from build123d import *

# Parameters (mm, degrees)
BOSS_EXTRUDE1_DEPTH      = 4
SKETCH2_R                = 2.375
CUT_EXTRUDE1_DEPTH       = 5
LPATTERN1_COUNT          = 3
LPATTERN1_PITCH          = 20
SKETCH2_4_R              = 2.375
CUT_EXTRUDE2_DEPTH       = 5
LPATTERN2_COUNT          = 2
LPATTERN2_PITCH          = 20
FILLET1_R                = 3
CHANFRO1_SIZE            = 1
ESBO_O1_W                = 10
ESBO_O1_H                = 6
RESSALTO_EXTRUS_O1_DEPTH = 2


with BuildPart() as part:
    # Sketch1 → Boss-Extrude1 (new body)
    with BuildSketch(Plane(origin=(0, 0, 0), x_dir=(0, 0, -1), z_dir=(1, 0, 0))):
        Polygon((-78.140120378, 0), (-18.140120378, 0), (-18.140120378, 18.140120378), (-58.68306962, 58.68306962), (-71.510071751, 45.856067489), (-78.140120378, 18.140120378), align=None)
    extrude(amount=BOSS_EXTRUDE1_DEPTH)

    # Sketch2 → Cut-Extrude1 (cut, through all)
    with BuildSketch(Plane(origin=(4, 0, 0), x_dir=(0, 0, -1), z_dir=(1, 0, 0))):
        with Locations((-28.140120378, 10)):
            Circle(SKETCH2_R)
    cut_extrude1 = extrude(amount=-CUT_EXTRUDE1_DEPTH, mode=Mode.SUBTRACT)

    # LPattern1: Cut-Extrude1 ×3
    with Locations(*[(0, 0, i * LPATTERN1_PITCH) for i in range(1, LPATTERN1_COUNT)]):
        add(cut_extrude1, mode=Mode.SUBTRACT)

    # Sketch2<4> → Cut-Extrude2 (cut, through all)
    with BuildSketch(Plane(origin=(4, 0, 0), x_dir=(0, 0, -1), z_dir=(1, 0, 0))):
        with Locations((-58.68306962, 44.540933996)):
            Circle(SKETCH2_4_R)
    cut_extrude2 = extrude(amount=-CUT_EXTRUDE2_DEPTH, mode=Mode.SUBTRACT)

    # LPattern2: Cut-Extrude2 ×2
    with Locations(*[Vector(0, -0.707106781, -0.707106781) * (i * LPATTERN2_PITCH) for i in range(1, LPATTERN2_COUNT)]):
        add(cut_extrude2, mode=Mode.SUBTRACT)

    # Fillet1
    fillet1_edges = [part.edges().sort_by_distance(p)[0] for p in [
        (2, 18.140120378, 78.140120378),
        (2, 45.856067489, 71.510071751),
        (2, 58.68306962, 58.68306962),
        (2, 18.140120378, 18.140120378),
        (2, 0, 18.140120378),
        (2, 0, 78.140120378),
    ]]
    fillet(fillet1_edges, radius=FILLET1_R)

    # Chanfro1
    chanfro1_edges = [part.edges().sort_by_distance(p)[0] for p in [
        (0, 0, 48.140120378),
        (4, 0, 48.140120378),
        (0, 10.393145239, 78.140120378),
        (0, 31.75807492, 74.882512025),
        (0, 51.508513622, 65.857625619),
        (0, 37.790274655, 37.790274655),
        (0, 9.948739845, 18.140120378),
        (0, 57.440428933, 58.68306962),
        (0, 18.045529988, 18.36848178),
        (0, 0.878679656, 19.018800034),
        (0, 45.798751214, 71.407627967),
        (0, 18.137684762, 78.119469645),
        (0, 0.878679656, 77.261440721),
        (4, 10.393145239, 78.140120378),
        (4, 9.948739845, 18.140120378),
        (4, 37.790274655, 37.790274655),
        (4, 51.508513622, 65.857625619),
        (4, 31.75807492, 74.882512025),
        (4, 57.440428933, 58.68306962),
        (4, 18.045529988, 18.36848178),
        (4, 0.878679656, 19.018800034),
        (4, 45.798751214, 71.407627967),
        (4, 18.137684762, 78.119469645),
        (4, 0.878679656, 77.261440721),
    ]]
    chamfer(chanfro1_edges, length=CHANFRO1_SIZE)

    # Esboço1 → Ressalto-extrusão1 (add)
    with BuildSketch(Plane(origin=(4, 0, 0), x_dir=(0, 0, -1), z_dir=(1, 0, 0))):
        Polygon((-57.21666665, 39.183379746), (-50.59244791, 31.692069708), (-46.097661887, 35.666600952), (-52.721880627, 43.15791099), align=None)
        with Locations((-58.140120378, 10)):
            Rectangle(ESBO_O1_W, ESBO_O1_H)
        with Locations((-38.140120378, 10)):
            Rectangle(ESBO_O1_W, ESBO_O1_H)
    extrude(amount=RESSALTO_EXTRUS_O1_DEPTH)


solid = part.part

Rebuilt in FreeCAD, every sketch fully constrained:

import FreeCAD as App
import Part
import Sketcher

V = App.Vector
Q = App.Units.Quantity


def edges_at(feature, points):
    """Names of the edges that pass closest to the given points."""
    edges = feature.Shape.Edges
    near = lambda p: min(range(len(edges)), key=lambda i: edges[i].distToShape(Part.Vertex(*p))[0])
    return sorted({f"Edge{near(p) + 1}" for p in points})

doc = App.newDocument("Part")
body = doc.addObject("PartDesign::Body", "Body")

# Sketch on YZ plane
sketch1 = body.newObject("Sketcher::SketchObject", "Sketch")
sketch1.AttachmentSupport = (doc.getObject("YZ_Plane"), [""])
sketch1.MapMode = "FlatFace"
sketch1.addGeometry(Part.LineSegment(V(0, 78.14012, 0), V(0, 18.14012, 0)), False)
sketch1.addGeometry(Part.LineSegment(V(0, 18.14012, 0), V(18.14012, 18.14012, 0)), False)
sketch1.addGeometry(Part.LineSegment(V(18.14012, 18.14012, 0), V(58.68307, 58.68307, 0)), False)
sketch1.addGeometry(Part.LineSegment(V(58.68307, 58.68307, 0), V(45.856067, 71.510072, 0)), False)
sketch1.addGeometry(Part.LineSegment(V(45.856067, 71.510072, 0), V(18.14012, 78.14012, 0)), False)
sketch1.addGeometry(Part.LineSegment(V(18.14012, 78.14012, 0), V(0, 78.14012, 0)), False)
sketch1.addConstraint(Sketcher.Constraint("Coincident", 0, 2, 1, 1))
sketch1.addConstraint(Sketcher.Constraint("Coincident", 1, 2, 2, 1))
sketch1.addConstraint(Sketcher.Constraint("Coincident", 2, 2, 3, 1))
sketch1.addConstraint(Sketcher.Constraint("Coincident", 3, 2, 4, 1))
sketch1.addConstraint(Sketcher.Constraint("Coincident", 4, 2, 5, 1))
sketch1.addConstraint(Sketcher.Constraint("Coincident", 5, 2, 0, 1))
sketch1.addConstraint(Sketcher.Constraint("Vertical", 0))
sketch1.addConstraint(Sketcher.Constraint("Horizontal", 1))
sketch1.addConstraint(Sketcher.Constraint("Horizontal", 5))
sketch1.addConstraint(Sketcher.Constraint("PointOnObject", 0, 2, -2))
sketch1.addConstraint(Sketcher.Constraint("Perpendicular", 2, 3))
sketch1.addConstraint(Sketcher.Constraint("Vertical", 1, 2, 4, 2))
sketch1.addConstraint(Sketcher.Constraint("DistanceY", 0, 2, 0, 1, 60.0))
sketch1.addConstraint(Sketcher.Constraint("Angle", 2, Q("45 deg")))
sketch1.addConstraint(Sketcher.Constraint("DistanceX", 1, 1, 1, 2, 18.14012))
sketch1.addConstraint(Sketcher.Constraint("Distance", 2, 57.336389))
sketch1.addConstraint(Sketcher.Constraint("Distance", 3, 18.14012))
sketch1.addConstraint(Sketcher.Constraint("DistanceY", -1, 1, 0, 2, 18.14012))
pad1 = body.newObject("PartDesign::Pad", "Pad")
pad1.Profile = sketch1
pad1.Length = 4

# Sketch on YZ plane
sketch2 = body.newObject("Sketcher::SketchObject", "Sketch001")
sketch2.AttachmentSupport = (doc.getObject("YZ_Plane"), [""])
sketch2.MapMode = "FlatFace"
sketch2.AttachmentOffset = App.Placement(V(0, 0, 4), App.Rotation())
sketch2.addGeometry(Part.Circle(V(10, 28.14012, 0), V(0, 0, 1), 2.375), False)
sketch2.addConstraint(Sketcher.Constraint("Diameter", 0, 4.75))
sketch2.addConstraint(Sketcher.Constraint("DistanceX", -1, 1, 0, 3, 10.0))
sketch2.addConstraint(Sketcher.Constraint("DistanceY", -1, 1, 0, 3, 28.14012))
pocket1 = body.newObject("PartDesign::Pocket", "Pocket")
pocket1.Profile = sketch2
pocket1.Type = "ThroughAll"
doc.recompute()

linearpattern = body.newObject("PartDesign::LinearPattern", "LinearPattern")
linearpattern.Originals = [pocket1]
linearpattern.Direction = (doc.getObject("Z_Axis"), [""])
linearpattern.Mode = "offset"
linearpattern.Offset = 20
linearpattern.Occurrences = 3
body.Tip = linearpattern

# Sketch on YZ plane
sketch3 = body.newObject("Sketcher::SketchObject", "Sketch002")
sketch3.AttachmentSupport = (doc.getObject("YZ_Plane"), [""])
sketch3.MapMode = "FlatFace"
sketch3.AttachmentOffset = App.Placement(V(0, 0, 4), App.Rotation())
sketch3.addGeometry(Part.Circle(V(44.540934, 58.68307, 0), V(0, 0, 1), 2.375), False)
sketch3.addConstraint(Sketcher.Constraint("Diameter", 0, 4.75))
sketch3.addConstraint(Sketcher.Constraint("DistanceY", -1, 1, 0, 3, 58.68307))
sketch3.addConstraint(Sketcher.Constraint("DistanceX", -1, 1, 0, 3, 44.540934))
pocket2 = body.newObject("PartDesign::Pocket", "Pocket001")
pocket2.Profile = sketch3
pocket2.Type = "ThroughAll"
doc.recompute()

datumline = body.newObject("PartDesign::Line", "DatumLine")
datumline.Placement = App.Placement(V(0, 0, 0), App.Rotation(V(0, 0, 1), V(0, -0.707106781, -0.707106781)))
linearpattern2 = body.newObject("PartDesign::LinearPattern", "LinearPattern001")
linearpattern2.Originals = [pocket2]
linearpattern2.Direction = (datumline, [""])
linearpattern2.Mode = "offset"
linearpattern2.Offset = 20
linearpattern2.Occurrences = 2
body.Tip = linearpattern2
doc.recompute()

fillet = body.newObject("PartDesign::Fillet", "Fillet")
fillet.Base = (linearpattern2, edges_at(linearpattern2, [
    (2, 18.14, 78.14),
    (2, 45.856, 71.51),
    (2, 58.683, 58.683),
    (2, 18.14, 18.14),
    (2, 0, 18.14),
    (2, 0, 78.14),
]))
fillet.Radius = 3
doc.recompute()

chamfer = body.newObject("PartDesign::Chamfer", "Chamfer")
chamfer.Base = (fillet, edges_at(fillet, [
    (0, 0, 48.14),
    (4, 0, 48.14),
    (0, 10.393, 78.14),
    (0, 31.758, 74.883),
    (0, 51.509, 65.858),
    (0, 37.79, 37.79),
    (0, 9.949, 18.14),
    (0, 57.44, 58.683),
    (0, 18.046, 18.368),
    (0, 0.879, 19.019),
    (0, 45.799, 71.408),
    (0, 18.138, 78.119),
    (0, 0.879, 77.261),
    (4, 10.393, 78.14),
    (4, 9.949, 18.14),
    (4, 37.79, 37.79),
    (4, 51.509, 65.858),
    (4, 31.758, 74.883),
    (4, 57.44, 58.683),
    (4, 18.046, 18.368),
    (4, 0.879, 19.019),
    (4, 45.799, 71.408),
    (4, 18.138, 78.119),
    (4, 0.879, 77.261),
]))
chamfer.Size = 1

# Sketch on YZ plane
sketch4 = body.newObject("Sketcher::SketchObject", "Sketch003")
sketch4.AttachmentSupport = (doc.getObject("YZ_Plane"), [""])
sketch4.MapMode = "FlatFace"
sketch4.AttachmentOffset = App.Placement(V(0, 0, 4), App.Rotation())
sketch4.addGeometry(Part.LineSegment(V(39.18338, 57.216667, 0), V(31.69207, 50.592448, 0)), False)
sketch4.addGeometry(Part.LineSegment(V(31.69207, 50.592448, 0), V(35.666601, 46.097662, 0)), False)
sketch4.addGeometry(Part.LineSegment(V(35.666601, 46.097662, 0), V(43.157911, 52.721881, 0)), False)
sketch4.addGeometry(Part.LineSegment(V(43.157911, 52.721881, 0), V(39.18338, 57.216667, 0)), False)
sketch4.addGeometry(Part.LineSegment(V(13, 63.14012, 0), V(7, 63.14012, 0)), False)
sketch4.addGeometry(Part.LineSegment(V(7, 63.14012, 0), V(7, 53.14012, 0)), False)
sketch4.addGeometry(Part.LineSegment(V(7, 53.14012, 0), V(13, 53.14012, 0)), False)
sketch4.addGeometry(Part.LineSegment(V(13, 53.14012, 0), V(13, 63.14012, 0)), False)
sketch4.addGeometry(Part.LineSegment(V(13, 43.14012, 0), V(7, 43.14012, 0)), False)
sketch4.addGeometry(Part.LineSegment(V(7, 43.14012, 0), V(7, 33.14012, 0)), False)
sketch4.addGeometry(Part.LineSegment(V(7, 33.14012, 0), V(13, 33.14012, 0)), False)
sketch4.addGeometry(Part.LineSegment(V(13, 33.14012, 0), V(13, 43.14012, 0)), False)
sketch4.addConstraint(Sketcher.Constraint("Coincident", 0, 2, 1, 1))
sketch4.addConstraint(Sketcher.Constraint("Coincident", 1, 2, 2, 1))
sketch4.addConstraint(Sketcher.Constraint("Coincident", 2, 2, 3, 1))
sketch4.addConstraint(Sketcher.Constraint("Coincident", 3, 2, 0, 1))
sketch4.addConstraint(Sketcher.Constraint("Coincident", 4, 2, 5, 1))
sketch4.addConstraint(Sketcher.Constraint("Coincident", 5, 2, 6, 1))
sketch4.addConstraint(Sketcher.Constraint("Coincident", 6, 2, 7, 1))
sketch4.addConstraint(Sketcher.Constraint("Coincident", 7, 2, 4, 1))
sketch4.addConstraint(Sketcher.Constraint("Coincident", 8, 2, 9, 1))
sketch4.addConstraint(Sketcher.Constraint("Coincident", 9, 2, 10, 1))
sketch4.addConstraint(Sketcher.Constraint("Coincident", 10, 2, 11, 1))
sketch4.addConstraint(Sketcher.Constraint("Coincident", 11, 2, 8, 1))
sketch4.addConstraint(Sketcher.Constraint("Horizontal", 4))
sketch4.addConstraint(Sketcher.Constraint("Vertical", 5))
sketch4.addConstraint(Sketcher.Constraint("Horizontal", 6))
sketch4.addConstraint(Sketcher.Constraint("Vertical", 7))
sketch4.addConstraint(Sketcher.Constraint("Horizontal", 8))
sketch4.addConstraint(Sketcher.Constraint("Vertical", 9))
sketch4.addConstraint(Sketcher.Constraint("Horizontal", 10))
sketch4.addConstraint(Sketcher.Constraint("Vertical", 11))
sketch4.addConstraint(Sketcher.Constraint("Perpendicular", 0, 1))
sketch4.addConstraint(Sketcher.Constraint("Perpendicular", 1, 2))
sketch4.addConstraint(Sketcher.Constraint("Perpendicular", 2, 3))
sketch4.addConstraint(Sketcher.Constraint("Vertical", 5, 2, 8, 2))
sketch4.addConstraint(Sketcher.Constraint("Vertical", 7, 2, 10, 2))
sketch4.addConstraint(Sketcher.Constraint("Equal", 7, 9))
sketch4.addConstraint(Sketcher.Constraint("DistanceX", 4, 2, 4, 1, 6.0))
sketch4.addConstraint(Sketcher.Constraint("DistanceY", 5, 2, 5, 1, 10.0))
sketch4.addConstraint(Sketcher.Constraint("Distance", 0, 10.0))
sketch4.addConstraint(Sketcher.Constraint("Distance", 1, 6.0))
sketch4.addConstraint(Sketcher.Constraint("DistanceX", -1, 1, 4, 2, 7.0))
sketch4.addConstraint(Sketcher.Constraint("DistanceY", 8, 2, 5, 2, 10.0))
sketch4.addConstraint(Sketcher.Constraint("DistanceX", -1, 1, 1, 2, 35.666601))
sketch4.addConstraint(Sketcher.Constraint("DistanceX", -1, 1, 0, 2, 31.69207))
sketch4.addConstraint(Sketcher.Constraint("DistanceY", -1, 1, 1, 2, 46.097662))
sketch4.addConstraint(Sketcher.Constraint("DistanceY", -1, 1, 4, 2, 63.14012))
pad2 = body.newObject("PartDesign::Pad", "Pad001")
pad2.Profile = sketch4
pad2.Length = 2

doc.recompute()
